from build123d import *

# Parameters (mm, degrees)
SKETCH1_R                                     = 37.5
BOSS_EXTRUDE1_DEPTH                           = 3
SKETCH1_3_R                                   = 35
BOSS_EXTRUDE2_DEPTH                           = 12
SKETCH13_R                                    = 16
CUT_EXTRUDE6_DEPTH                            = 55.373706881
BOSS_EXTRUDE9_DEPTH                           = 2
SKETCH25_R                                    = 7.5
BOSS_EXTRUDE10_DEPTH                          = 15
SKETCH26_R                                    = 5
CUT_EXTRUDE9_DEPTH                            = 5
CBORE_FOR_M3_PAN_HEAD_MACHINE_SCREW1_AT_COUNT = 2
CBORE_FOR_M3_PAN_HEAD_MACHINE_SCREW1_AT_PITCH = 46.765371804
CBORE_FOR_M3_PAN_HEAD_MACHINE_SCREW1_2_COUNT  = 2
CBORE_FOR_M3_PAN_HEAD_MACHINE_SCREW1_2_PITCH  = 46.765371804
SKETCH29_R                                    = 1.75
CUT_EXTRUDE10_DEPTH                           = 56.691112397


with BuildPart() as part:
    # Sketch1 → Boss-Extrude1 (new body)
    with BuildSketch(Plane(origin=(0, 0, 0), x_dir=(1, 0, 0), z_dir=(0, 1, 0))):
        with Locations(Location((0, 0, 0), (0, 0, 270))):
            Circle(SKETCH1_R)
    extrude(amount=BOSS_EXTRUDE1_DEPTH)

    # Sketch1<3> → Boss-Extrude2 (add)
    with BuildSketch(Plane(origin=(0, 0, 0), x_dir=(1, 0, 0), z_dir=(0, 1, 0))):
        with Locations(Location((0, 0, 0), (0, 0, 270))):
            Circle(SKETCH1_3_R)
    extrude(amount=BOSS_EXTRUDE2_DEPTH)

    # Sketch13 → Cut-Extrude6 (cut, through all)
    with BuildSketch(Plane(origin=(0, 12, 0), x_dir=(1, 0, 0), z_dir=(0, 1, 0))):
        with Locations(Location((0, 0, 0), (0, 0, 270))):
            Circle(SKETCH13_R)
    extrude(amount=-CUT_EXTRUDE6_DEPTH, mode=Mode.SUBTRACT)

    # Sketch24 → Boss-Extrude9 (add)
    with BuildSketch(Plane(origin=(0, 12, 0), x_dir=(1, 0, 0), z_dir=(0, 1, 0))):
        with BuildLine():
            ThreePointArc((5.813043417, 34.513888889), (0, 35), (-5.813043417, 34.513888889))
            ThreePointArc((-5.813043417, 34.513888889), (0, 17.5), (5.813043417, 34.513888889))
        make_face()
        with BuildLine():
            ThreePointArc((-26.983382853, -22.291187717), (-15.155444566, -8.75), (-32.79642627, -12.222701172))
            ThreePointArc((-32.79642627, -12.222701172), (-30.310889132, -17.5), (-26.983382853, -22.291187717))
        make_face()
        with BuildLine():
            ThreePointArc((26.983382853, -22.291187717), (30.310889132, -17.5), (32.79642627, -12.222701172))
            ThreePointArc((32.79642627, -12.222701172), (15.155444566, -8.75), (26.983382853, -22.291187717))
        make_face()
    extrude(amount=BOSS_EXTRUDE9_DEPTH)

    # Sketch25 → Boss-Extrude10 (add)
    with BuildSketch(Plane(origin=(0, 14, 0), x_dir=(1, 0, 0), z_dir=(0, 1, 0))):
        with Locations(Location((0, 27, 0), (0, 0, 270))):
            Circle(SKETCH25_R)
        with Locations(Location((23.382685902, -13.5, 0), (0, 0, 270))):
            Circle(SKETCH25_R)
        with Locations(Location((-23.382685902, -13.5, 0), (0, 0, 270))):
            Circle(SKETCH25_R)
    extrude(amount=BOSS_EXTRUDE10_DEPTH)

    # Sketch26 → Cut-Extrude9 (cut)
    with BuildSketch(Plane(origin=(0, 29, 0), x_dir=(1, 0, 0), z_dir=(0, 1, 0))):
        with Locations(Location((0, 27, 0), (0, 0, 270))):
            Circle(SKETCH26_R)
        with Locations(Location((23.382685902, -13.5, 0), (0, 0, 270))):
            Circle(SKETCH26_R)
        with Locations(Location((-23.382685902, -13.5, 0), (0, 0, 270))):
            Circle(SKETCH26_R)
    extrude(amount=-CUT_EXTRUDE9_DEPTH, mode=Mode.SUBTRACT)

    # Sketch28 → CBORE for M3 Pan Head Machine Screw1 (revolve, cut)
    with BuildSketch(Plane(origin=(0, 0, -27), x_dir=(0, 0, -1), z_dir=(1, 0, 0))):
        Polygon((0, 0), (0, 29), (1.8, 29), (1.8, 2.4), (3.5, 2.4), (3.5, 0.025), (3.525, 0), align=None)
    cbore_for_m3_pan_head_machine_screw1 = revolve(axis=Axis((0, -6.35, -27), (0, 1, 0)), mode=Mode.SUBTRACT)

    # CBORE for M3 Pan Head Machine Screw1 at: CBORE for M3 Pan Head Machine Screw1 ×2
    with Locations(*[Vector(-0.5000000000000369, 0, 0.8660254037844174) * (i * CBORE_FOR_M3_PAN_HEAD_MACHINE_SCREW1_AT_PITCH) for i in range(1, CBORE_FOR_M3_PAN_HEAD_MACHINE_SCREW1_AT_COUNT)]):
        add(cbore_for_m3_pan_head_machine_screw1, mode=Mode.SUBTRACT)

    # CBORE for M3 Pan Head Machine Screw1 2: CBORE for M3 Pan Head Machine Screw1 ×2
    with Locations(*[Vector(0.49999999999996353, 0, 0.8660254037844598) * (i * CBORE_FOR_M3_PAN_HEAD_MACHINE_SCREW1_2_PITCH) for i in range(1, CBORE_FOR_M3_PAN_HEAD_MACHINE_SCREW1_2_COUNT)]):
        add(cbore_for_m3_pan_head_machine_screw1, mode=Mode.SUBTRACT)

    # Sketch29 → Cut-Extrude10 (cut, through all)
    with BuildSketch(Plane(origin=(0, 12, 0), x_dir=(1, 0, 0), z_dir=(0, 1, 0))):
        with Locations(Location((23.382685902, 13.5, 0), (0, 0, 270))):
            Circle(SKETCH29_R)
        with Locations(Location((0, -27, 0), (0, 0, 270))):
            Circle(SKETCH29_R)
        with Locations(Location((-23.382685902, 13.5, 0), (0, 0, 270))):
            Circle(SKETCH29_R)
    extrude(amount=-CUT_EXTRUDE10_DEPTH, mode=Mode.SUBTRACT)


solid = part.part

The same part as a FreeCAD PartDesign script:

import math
import FreeCAD as App
import Part
import Sketcher
Q = App.Units.Quantity


def add_polygon(sketch, points):
    """Adds a closed chain of lines whose ends are joined by coincident constraints."""
    first, n = sketch.GeometryCount, len(points)
    for a, b in zip(points, points[1:] + points[:1]):
        sketch.addGeometry(Part.LineSegment(App.Vector(*a, 0), App.Vector(*b, 0)), False)
    for i in range(n):
        sketch.addConstraint(Sketcher.Constraint("Coincident", first + i, 2, first + (i + 1) % n, 1))

doc = App.newDocument("Part")
body = doc.addObject("PartDesign::Body", "Body")

sketch1 = doc.addObject("Sketcher::SketchObject", "Sketch")
body.addObject(sketch1)
sketch1.AttachmentSupport = (doc.XZ_Plane, [""])
sketch1.MapMode = "FlatFace"
sketch1.addGeometry(Part.Circle(App.Vector(0, 0, 0), App.Vector(0, 0, 1), 38), False)
sketch1.addConstraint(Sketcher.Constraint("Coincident", 0, 3, -1, 1))
sketch1.addConstraint(Sketcher.Constraint("Diameter", 0, 75.0))
pad1 = doc.addObject("PartDesign::Pad", "Pad")
body.addObject(pad1)
pad1.Profile = sketch1
pad1.Length = 3
pad1.Reversed = True

sketch2 = doc.addObject("Sketcher::SketchObject", "Sketch001")
body.addObject(sketch2)
sketch2.AttachmentSupport = (doc.XZ_Plane, [""])
sketch2.MapMode = "FlatFace"
sketch2.addGeometry(Part.Circle(App.Vector(0, 0, 0), App.Vector(0, 0, 1), 35), False)
sketch2.addConstraint(Sketcher.Constraint("Coincident", 0, 3, -1, 1))
sketch2.addConstraint(Sketcher.Constraint("Diameter", 0, 70.0))
pad2 = doc.addObject("PartDesign::Pad", "Pad001")
body.addObject(pad2)
pad2.Profile = sketch2
pad2.Length = 12
pad2.Reversed = True

sketch3 = doc.addObject("Sketcher::SketchObject", "Sketch002")
body.addObject(sketch3)
sketch3.AttachmentSupport = (doc.XZ_Plane, [""])
sketch3.MapMode = "FlatFace"
sketch3.AttachmentOffset = App.Placement(App.Vector(0, 0, -12), App.Rotation())
sketch3.addGeometry(Part.Circle(App.Vector(0, 0, 0), App.Vector(0, 0, 1), 16), False)
sketch3.addConstraint(Sketcher.Constraint("Coincident", 0, 3, -1, 1))
sketch3.addConstraint(Sketcher.Constraint("Diameter", 0, 32.0))
pocket1 = doc.addObject("PartDesign::Pocket", "Pocket")
body.addObject(pocket1)
pocket1.Profile = sketch3
pocket1.Type = "ThroughAll"
pocket1.Reversed = True

sketch4 = doc.addObject("Sketcher::SketchObject", "Sketch003")
body.addObject(sketch4)
sketch4.AttachmentSupport = (doc.XZ_Plane, [""])
sketch4.MapMode = "FlatFace"
sketch4.AttachmentOffset = App.Placement(App.Vector(0, 0, -12), App.Rotation())
sketch4.addGeometry(Part.ArcOfCircle(Part.Circle(App.Vector(0, 0, 0), App.Vector(0, 0, 1), 35), math.radians(-99.56), math.radians(-80.44)), False)
sketch4.addGeometry(Part.ArcOfCircle(Part.Circle(App.Vector(0, -27, 0), App.Vector(0, 0, 1), 10), math.radians(-52), math.radians(232)), False)
sketch4.addGeometry(Part.ArcOfCircle(Part.Circle(App.Vector(-23, 14, 0), App.Vector(0, 0, 1), 10), math.radians(-172), math.radians(112)), False)
sketch4.addGeometry(Part.ArcOfCircle(Part.Circle(App.Vector(0, 0, 0), App.Vector(0, 0, 1), 35), math.radians(140.44), math.radians(159.56)), False)
sketch4.addGeometry(Part.ArcOfCircle(Part.Circle(App.Vector(0, 0, 0), App.Vector(0, 0, 1), 35), math.radians(20.44), math.radians(39.56)), False)
sketch4.addGeometry(Part.ArcOfCircle(Part.Circle(App.Vector(23, 14, 0), App.Vector(0, 0, 1), 10), math.radians(68), math.radians(352)), False)
sketch4.addConstraint(Sketcher.Constraint("Coincident", 0, 1, 1, 2))
sketch4.addConstraint(Sketcher.Constraint("Coincident", 1, 1, 0, 2))
sketch4.addConstraint(Sketcher.Constraint("Coincident", 2, 1, 3, 2))
sketch4.addConstraint(Sketcher.Constraint("Coincident", 3, 1, 2, 2))
sketch4.addConstraint(Sketcher.Constraint("Coincident", 4, 1, 5, 2))
sketch4.addConstraint(Sketcher.Constraint("Coincident", 5, 1, 4, 2))
sketch4.addConstraint(Sketcher.Constraint("Coincident", 0, 3, -1, 1))
sketch4.addConstraint(Sketcher.Constraint("Coincident", 3, 3, -1, 1))
sketch4.addConstraint(Sketcher.Constraint("Coincident", 4, 3, -1, 1))
sketch4.addConstraint(Sketcher.Constraint("Equal", 1, 2))
sketch4.addConstraint(Sketcher.Constraint("Equal", 0, 3))
sketch4.addConstraint(Sketcher.Constraint("Equal", 3, 4))
sketch4.addConstraint(Sketcher.Constraint("Equal", 2, 5))
sketch4.addConstraint(Sketcher.Constraint("Symmetric", 2, 3, 5, 3, -2))
sketch4.addConstraint(Sketcher.Constraint("PointOnObject", 1, 3, -2))
sketch4.addConstraint(Sketcher.Constraint("Radius", 0, 35.0))
sketch4.addConstraint(Sketcher.Constraint("Radius", 1, 9.5))
sketch4.addConstraint(Sketcher.Constraint("DistanceY", 1, 3, -1, 1, 27.0))
sketch4.addConstraint(Sketcher.Constraint("DistanceY", -1, 1, 2, 3, 13.5))
sketch4.addConstraint(Sketcher.Constraint("DistanceY", -1, 1, 2, 1, 12.222701))
pad3 = doc.addObject("PartDesign::Pad", "Pad002")
body.addObject(pad3)
pad3.Profile = sketch4
pad3.Length = 2
pad3.Reversed = True

sketch5 = doc.addObject("Sketcher::SketchObject", "Sketch004")
body.addObject(sketch5)
sketch5.AttachmentSupport = (doc.XZ_Plane, [""])
sketch5.MapMode = "FlatFace"
sketch5.AttachmentOffset = App.Placement(App.Vector(0, 0, -14), App.Rotation())
sketch5.addGeometry(Part.Circle(App.Vector(0, -27, 0), App.Vector(0, 0, 1), 8), False)
sketch5.addGeometry(Part.Circle(App.Vector(23, 14, 0), App.Vector(0, 0, 1), 8), False)
sketch5.addGeometry(Part.Circle(App.Vector(-23, 14, 0), App.Vector(0, 0, 1), 8), False)
sketch5.addConstraint(Sketcher.Constraint("Equal", 0, 1))
sketch5.addConstraint(Sketcher.Constraint("Equal", 1, 2))
sketch5.addConstraint(Sketcher.Constraint("Symmetric", 1, 3, 2, 3, -2))
sketch5.addConstraint(Sketcher.Constraint("PointOnObject", 0, 3, -2))
sketch5.addConstraint(Sketcher.Constraint("Diameter", 0, 15.0))
sketch5.addConstraint(Sketcher.Constraint("DistanceY", 0, 3, -1, 1, 27.0))
sketch5.addConstraint(Sketcher.Constraint("DistanceY", -1, 1, 1, 3, 13.5))
sketch5.addConstraint(Sketcher.Constraint("DistanceX", 2, 3, 1, 3, 46.765372))
pad4 = doc.addObject("PartDesign::Pad", "Pad003")
body.addObject(pad4)
pad4.Profile = sketch5
pad4.Length = 15
pad4.Reversed = True

sketch6 = doc.addObject("Sketcher::SketchObject", "Sketch005")
body.addObject(sketch6)
sketch6.AttachmentSupport = (doc.XZ_Plane, [""])
sketch6.MapMode = "FlatFace"
sketch6.AttachmentOffset = App.Placement(App.Vector(0, 0, -29), App.Rotation())
sketch6.addGeometry(Part.Circle(App.Vector(0, -27, 0), App.Vector(0, 0, 1), 5), False)
sketch6.addGeometry(Part.Circle(App.Vector(23, 14, 0), App.Vector(0, 0, 1), 5), False)
sketch6.addGeometry(Part.Circle(App.Vector(-23, 14, 0), App.Vector(0, 0, 1), 5), False)
sketch6.addConstraint(Sketcher.Constraint("Equal", 0, 1))
sketch6.addConstraint(Sketcher.Constraint("Equal", 1, 2))
sketch6.addConstraint(Sketcher.Constraint("Symmetric", 1, 3, 2, 3, -2))
sketch6.addConstraint(Sketcher.Constraint("PointOnObject", 0, 3, -2))
sketch6.addConstraint(Sketcher.Constraint("Diameter", 0, 10.0))
sketch6.addConstraint(Sketcher.Constraint("DistanceY", 0, 3, -1, 1, 27.0))
sketch6.addConstraint(Sketcher.Constraint("DistanceY", -1, 1, 1, 3, 13.5))
sketch6.addConstraint(Sketcher.Constraint("DistanceX", 2, 3, 1, 3, 46.765372))
pocket2 = doc.addObject("PartDesign::Pocket", "Pocket001")
body.addObject(pocket2)
pocket2.Profile = sketch6
pocket2.Length = 5
pocket2.Reversed = True

sketch7 = doc.addObject("Sketcher::SketchObject", "Sketch006")
body.addObject(sketch7)
sketch7.AttachmentSupport = (doc.YZ_Plane, [""])
sketch7.MapMode = "FlatFace"
add_polygon(sketch7, [(29, -27), (0, -27), (0, -30.525), (0.025, -30.5), (2.4, -30.5), (2.4, -28.8), (29, -28.8)])
sketch7.addGeometry(Part.LineSegment(App.Vector(0, -27, 0), App.Vector(29, -27, 0)), True)
sketch7.addConstraint(Sketcher.Constraint("Horizontal", 0))
sketch7.addConstraint(Sketcher.Constraint("Vertical", 1))
sketch7.addConstraint(Sketcher.Constraint("Horizontal", 3))
sketch7.addConstraint(Sketcher.Constraint("Vertical", 4))
sketch7.addConstraint(Sketcher.Constraint("Horizontal", 5))
sketch7.addConstraint(Sketcher.Constraint("Vertical", 6))
sketch7.addConstraint(Sketcher.Constraint("Horizontal", 7))
sketch7.addConstraint(Sketcher.Constraint("Coincident", 7, 1, 0, 2))
sketch7.addConstraint(Sketcher.Constraint("PointOnObject", 0, 2, -2))
sketch7.addConstraint(Sketcher.Constraint("Vertical", 5, 2, 7, 2))
sketch7.addConstraint(Sketcher.Constraint("DistanceX", 0, 2, 0, 1, 29.0))
sketch7.addConstraint(Sketcher.Constraint("Angle", 2, Q("45 deg")))
sketch7.addConstraint(Sketcher.Constraint("DistanceX", 5, 1, 5, 2, 26.6))
sketch7.addConstraint(Sketcher.Constraint("DistanceY", 4, 1, 4, 2, 1.7))
sketch7.addConstraint(Sketcher.Constraint("DistanceY", 6, 1, 6, 2, 1.8))
sketch7.addConstraint(Sketcher.Constraint("DistanceY", 0, 2, -1, 1, 27.0))
sketch7.addConstraint(Sketcher.Constraint("DistanceX", 3, 1, 3, 2, 2.375))
groove = doc.addObject("PartDesign::Groove", "Groove")
body.addObject(groove)
groove.Profile = sketch7
groove.ReferenceAxis = (sketch7, ["Axis0"])
groove.Angle = 360
doc.recompute()

datumline = doc.addObject("PartDesign::Line", "DatumLine")
body.addObject(datumline)
datumline.Placement = App.Placement(App.Vector(0, 0, 0), App.Rotation(App.Vector(0, 0, 1), App.Vector(-0.5, 0, 0.866025404)))
linearpattern = doc.addObject("PartDesign::LinearPattern", "LinearPattern")
body.addObject(linearpattern)
linearpattern.Originals = [groove]
linearpattern.Direction = (datumline, [""])
linearpattern.Mode = "offset"
linearpattern.Offset = 46.765372
linearpattern.Occurrences = 2
body.Tip = linearpattern
doc.recompute()

datumline2 = doc.addObject("PartDesign::Line", "DatumLine001")
body.addObject(datumline2)
datumline2.Placement = App.Placement(App.Vector(0, 0, 0), App.Rotation(App.Vector(0, 0, 1), App.Vector(0.5, 0, 0.866025404)))
linearpattern2 = doc.addObject("PartDesign::LinearPattern", "LinearPattern001")
body.addObject(linearpattern2)
linearpattern2.Originals = [groove]
linearpattern2.Direction = (datumline2, [""])
linearpattern2.Mode = "offset"
linearpattern2.Offset = 46.765372
linearpattern2.Occurrences = 2
body.Tip = linearpattern2

sketch8 = doc.addObject("Sketcher::SketchObject", "Sketch007")
body.addObject(sketch8)
sketch8.AttachmentSupport = (doc.XZ_Plane, [""])
sketch8.MapMode = "FlatFace"
sketch8.AttachmentOffset = App.Placement(App.Vector(0, 0, -12), App.Rotation())
sketch8.addGeometry(Part.Circle(App.Vector(23.4, -13.5, 0), App.Vector(0, 0, 1), 1.8), False)
sketch8.addGeometry(Part.Circle(App.Vector(0, 27, 0), App.Vector(0, 0, 1), 1.8), False)
sketch8.addGeometry(Part.Circle(App.Vector(-23.4, -13.5, 0), App.Vector(0, 0, 1), 1.8), False)
sketch8.addConstraint(Sketcher.Constraint("Equal", 0, 1))
sketch8.addConstraint(Sketcher.Constraint("Equal", 1, 2))
sketch8.addConstraint(Sketcher.Constraint("Symmetric", 0, 3, 2, 3, -2))
sketch8.addConstraint(Sketcher.Constraint("PointOnObject", 1, 3, -2))
sketch8.addConstraint(Sketcher.Constraint("Diameter", 0, 3.5))
sketch8.addConstraint(Sketcher.Constraint("DistanceY", -1, 1, 1, 3, 27.0))
sketch8.addConstraint(Sketcher.Constraint("DistanceY", 0, 3, -1, 1, 13.5))
sketch8.addConstraint(Sketcher.Constraint("DistanceX", 2, 3, 0, 3, 46.765372))
pocket3 = doc.addObject("PartDesign::Pocket", "Pocket002")
body.addObject(pocket3)
pocket3.Profile = sketch8
pocket3.Type = "ThroughAll"
pocket3.Reversed = True

doc.recompute()
